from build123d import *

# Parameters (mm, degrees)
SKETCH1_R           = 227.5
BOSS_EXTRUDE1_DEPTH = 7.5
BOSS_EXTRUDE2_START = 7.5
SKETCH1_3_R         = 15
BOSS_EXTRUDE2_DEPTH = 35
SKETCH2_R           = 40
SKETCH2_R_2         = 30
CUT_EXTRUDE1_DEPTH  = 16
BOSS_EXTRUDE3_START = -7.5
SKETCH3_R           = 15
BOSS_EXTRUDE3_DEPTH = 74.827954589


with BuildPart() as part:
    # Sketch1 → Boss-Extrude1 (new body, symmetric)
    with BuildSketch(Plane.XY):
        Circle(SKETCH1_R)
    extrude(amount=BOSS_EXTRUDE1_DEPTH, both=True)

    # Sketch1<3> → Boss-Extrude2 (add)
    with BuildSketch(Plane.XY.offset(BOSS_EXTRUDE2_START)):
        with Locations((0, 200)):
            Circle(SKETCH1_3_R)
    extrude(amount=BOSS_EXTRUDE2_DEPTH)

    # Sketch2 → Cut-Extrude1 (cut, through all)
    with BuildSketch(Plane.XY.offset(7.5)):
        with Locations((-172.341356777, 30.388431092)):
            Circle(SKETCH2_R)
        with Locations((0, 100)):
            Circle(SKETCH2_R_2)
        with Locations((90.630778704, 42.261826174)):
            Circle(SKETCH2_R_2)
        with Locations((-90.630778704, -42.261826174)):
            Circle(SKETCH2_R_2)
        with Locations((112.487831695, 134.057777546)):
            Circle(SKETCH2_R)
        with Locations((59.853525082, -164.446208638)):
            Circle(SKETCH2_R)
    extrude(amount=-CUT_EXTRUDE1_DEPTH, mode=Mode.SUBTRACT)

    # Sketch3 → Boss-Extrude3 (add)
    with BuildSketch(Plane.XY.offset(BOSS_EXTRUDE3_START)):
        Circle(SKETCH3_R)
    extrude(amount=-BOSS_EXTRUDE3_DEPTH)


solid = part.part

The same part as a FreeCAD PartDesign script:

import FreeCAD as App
import Part
import Sketcher
from FreeCAD import Vector
Q = App.Units.Quantity

doc = App.newDocument("Part")
body = doc.addObject("PartDesign::Body", "Body")

# Sketch on XY plane
sketch1 = body.newObject("Sketcher::SketchObject", "Sketch")
sketch1.AttachmentSupport = (doc.getObject("XY_Plane"), [""])
sketch1.MapMode = "FlatFace"
sketch1.addGeometry(Part.Circle(Vector(0, 0, 0), Vector(0, 0, 1), 228), False)
sketch1.addConstraint(Sketcher.Constraint("Coincident", 0, 3, -1, 1))
sketch1.addConstraint(Sketcher.Constraint("Diameter", 0, Q("455 mm")))
pad1 = body.newObject("PartDesign::Pad", "Pad")
pad1.Profile = sketch1
pad1.Length = 15
pad1.Midplane = True

# Sketch on XY plane
sketch2 = body.newObject("Sketcher::SketchObject", "Sketch001")
sketch2.AttachmentSupport = (doc.getObject("XY_Plane"), [""])
sketch2.MapMode = "FlatFace"
sketch2.AttachmentOffset = App.Placement(Vector(0, 0, 7.5), App.Rotation())
sketch2.addGeometry(Part.Circle(Vector(0, 200, 0), Vector(0, 0, 1), 15), False)
sketch2.addConstraint(Sketcher.Constraint("PointOnObject", 0, 3, -2))
sketch2.addConstraint(Sketcher.Constraint("Diameter", 0, Q("30 mm")))
sketch2.addConstraint(Sketcher.Constraint("DistanceY", -1, 1, 0, 3, Q("200 mm")))
pad2 = body.newObject("PartDesign::Pad", "Pad001")
pad2.Profile = sketch2
pad2.Length = 35

# Sketch on XY plane
sketch3 = body.newObject("Sketcher::SketchObject", "Sketch002")
sketch3.AttachmentSupport = (doc.getObject("XY_Plane"), [""])
sketch3.MapMode = "FlatFace"
sketch3.AttachmentOffset = App.Placement(Vector(0, 0, 7.5), App.Rotation())
sketch3.addGeometry(Part.Circle(Vector(-172, 30, 0), Vector(0, 0, 1), 40), False)
sketch3.addGeometry(Part.Circle(Vector(0, 100, 0), Vector(0, 0, 1), 30), False)
sketch3.addGeometry(Part.Circle(Vector(91, 42, 0), Vector(0, 0, 1), 30), False)
sketch3.addGeometry(Part.Circle(Vector(-91, -42, 0), Vector(0, 0, 1), 30), False)
sketch3.addGeometry(Part.Circle(Vector(112, 134, 0), Vector(0, 0, 1), 40), False)
sketch3.addGeometry(Part.Circle(Vector(60, -164, 0), Vector(0, 0, 1), 40), False)
sketch3.addConstraint(Sketcher.Constraint("Equal", 1, 2))
sketch3.addConstraint(Sketcher.Constraint("Equal", 2, 3))
sketch3.addConstraint(Sketcher.Constraint("Equal", 0, 4))
sketch3.addConstraint(Sketcher.Constraint("Equal", 4, 5))
sketch3.addConstraint(Sketcher.Constraint("Symmetric", 2, 3, 3, 3, -1, 1))
sketch3.addConstraint(Sketcher.Constraint("PointOnObject", 1, 3, -2))
sketch3.addConstraint(Sketcher.Constraint("Diameter", 0, Q("80 mm")))
sketch3.addConstraint(Sketcher.Constraint("Diameter", 1, Q("60 mm")))
sketch3.addConstraint(Sketcher.Constraint("DistanceY", -1, 1, 1, 3, Q("100 mm")))
sketch3.addConstraint(Sketcher.Constraint("DistanceY", -1, 1, 0, 3, Q("30.388431 mm")))
sketch3.addConstraint(Sketcher.Constraint("DistanceX", -1, 1, 2, 3, Q("90.630779 mm")))
sketch3.addConstraint(Sketcher.Constraint("DistanceX", -1, 1, 4, 3, Q("112.487832 mm")))
sketch3.addConstraint(Sketcher.Constraint("DistanceY", 5, 3, -1, 1, Q("164.446209 mm")))
sketch3.addConstraint(Sketcher.Constraint("DistanceX", 0, 3, 3, 3, Q("81.710578 mm")))
sketch3.addConstraint(Sketcher.Constraint("DistanceY", 2, 3, 4, 3, Q("91.795951 mm")))
sketch3.addConstraint(Sketcher.Constraint("DistanceX", 0, 3, 5, 3, Q("232.194882 mm")))
sketch3.addConstraint(Sketcher.Constraint("DistanceY", -1, 1, 2, 3, Q("42.261826 mm")))
pocket1 = body.newObject("PartDesign::Pocket", "Pocket")
pocket1.Profile = sketch3
pocket1.Type = "ThroughAll"

# Sketch on XY plane
sketch4 = body.newObject("Sketcher::SketchObject", "Sketch003")
sketch4.AttachmentSupport = (doc.getObject("XY_Plane"), [""])
sketch4.MapMode = "FlatFace"
sketch4.AttachmentOffset = App.Placement(Vector(0, 0, -7.5), App.Rotation())
sketch4.addGeometry(Part.Circle(Vector(0, 0, 0), Vector(0, 0, 1), 15), False)
sketch4.addConstraint(Sketcher.Constraint("Coincident", 0, 3, -1, 1))
sketch4.addConstraint(Sketcher.Constraint("Diameter", 0, Q("30 mm")))
pad3 = body.newObject("PartDesign::Pad", "Pad002")
pad3.Profile = sketch4
pad3.Length = 74.827955
pad3.Reversed = True

doc.recompute()
